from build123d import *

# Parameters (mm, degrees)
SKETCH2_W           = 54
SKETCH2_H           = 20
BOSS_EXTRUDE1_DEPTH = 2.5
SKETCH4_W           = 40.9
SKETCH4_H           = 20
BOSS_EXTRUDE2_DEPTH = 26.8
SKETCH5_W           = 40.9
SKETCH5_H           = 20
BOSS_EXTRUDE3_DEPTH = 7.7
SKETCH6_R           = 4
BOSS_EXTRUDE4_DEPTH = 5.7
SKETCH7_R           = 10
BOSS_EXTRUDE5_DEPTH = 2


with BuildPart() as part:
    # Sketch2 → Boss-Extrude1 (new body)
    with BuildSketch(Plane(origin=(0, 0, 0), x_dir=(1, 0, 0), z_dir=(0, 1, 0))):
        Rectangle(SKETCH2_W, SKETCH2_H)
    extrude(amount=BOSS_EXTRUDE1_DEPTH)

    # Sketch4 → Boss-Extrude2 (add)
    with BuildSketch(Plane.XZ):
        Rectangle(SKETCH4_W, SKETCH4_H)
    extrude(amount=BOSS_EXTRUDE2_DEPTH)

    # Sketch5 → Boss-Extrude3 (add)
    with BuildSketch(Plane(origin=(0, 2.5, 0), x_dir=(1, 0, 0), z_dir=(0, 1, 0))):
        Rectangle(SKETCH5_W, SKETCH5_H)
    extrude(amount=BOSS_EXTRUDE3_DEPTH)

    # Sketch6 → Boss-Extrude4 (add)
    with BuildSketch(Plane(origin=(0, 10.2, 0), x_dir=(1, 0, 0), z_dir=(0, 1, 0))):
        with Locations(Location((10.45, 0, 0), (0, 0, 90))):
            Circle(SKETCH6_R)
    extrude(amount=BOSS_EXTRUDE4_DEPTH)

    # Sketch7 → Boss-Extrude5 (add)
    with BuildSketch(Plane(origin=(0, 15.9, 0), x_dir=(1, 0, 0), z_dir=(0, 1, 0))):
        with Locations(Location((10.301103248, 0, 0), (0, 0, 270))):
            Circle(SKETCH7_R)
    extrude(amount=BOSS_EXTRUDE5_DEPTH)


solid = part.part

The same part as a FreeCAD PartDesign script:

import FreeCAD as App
import Part
import Sketcher

V = App.Vector

doc = App.newDocument("Part")
body = doc.addObject("PartDesign::Body", "Body")

sketch1 = body.newObject("Sketcher::SketchObject", "Sketch")
sketch1.AttachmentSupport = (doc.getObject("XZ_Plane"), [""])
sketch1.MapMode = "FlatFace"
sketch1.addGeometry(Part.LineSegment(V(-27, -10, 0), V(-27, 10, 0)), False)
sketch1.addGeometry(Part.LineSegment(V(-27, 10, 0), V(27, 10, 0)), False)
sketch1.addGeometry(Part.LineSegment(V(27, 10, 0), V(27, -10, 0)), False)
sketch1.addGeometry(Part.LineSegment(V(27, -10, 0), V(-27, -10, 0)), False)
sketch1.addConstraint(Sketcher.Constraint("Coincident", 0, 2, 1, 1))
sketch1.addConstraint(Sketcher.Constraint("Coincident", 1, 2, 2, 1))
sketch1.addConstraint(Sketcher.Constraint("Coincident", 2, 2, 3, 1))
sketch1.addConstraint(Sketcher.Constraint("Coincident", 3, 2, 0, 1))
sketch1.addConstraint(Sketcher.Constraint("Vertical", 0))
sketch1.addConstraint(Sketcher.Constraint("Horizontal", 1))
sketch1.addConstraint(Sketcher.Constraint("Vertical", 2))
sketch1.addConstraint(Sketcher.Constraint("Horizontal", 3))
sketch1.addConstraint(Sketcher.Constraint("Symmetric", 0, 2, 2, 2, -1, 1))
sketch1.addConstraint(Sketcher.Constraint("DistanceX", 1, 1, 1, 2, 54.0))
sketch1.addConstraint(Sketcher.Constraint("DistanceY", 0, 1, 0, 2, 20.0))
pad1 = body.newObject("PartDesign::Pad", "Pad")
pad1.Profile = sketch1
pad1.Length = 2.5
pad1.Reversed = True

sketch2 = body.newObject("Sketcher::SketchObject", "Sketch001")
sketch2.AttachmentSupport = (doc.getObject("XZ_Plane"), [""])
sketch2.MapMode = "FlatFace"
sketch2.addGeometry(Part.LineSegment(V(-20, 10, 0), V(-20, -10, 0)), False)
sketch2.addGeometry(Part.LineSegment(V(-20, -10, 0), V(20, -10, 0)), False)
sketch2.addGeometry(Part.LineSegment(V(20, -10, 0), V(20, 10, 0)), False)
sketch2.addGeometry(Part.LineSegment(V(20, 10, 0), V(-20, 10, 0)), False)
sketch2.addConstraint(Sketcher.Constraint("Coincident", 0, 2, 1, 1))
sketch2.addConstraint(Sketcher.Constraint("Coincident", 1, 2, 2, 1))
sketch2.addConstraint(Sketcher.Constraint("Coincident", 2, 2, 3, 1))
sketch2.addConstraint(Sketcher.Constraint("Coincident", 3, 2, 0, 1))
sketch2.addConstraint(Sketcher.Constraint("Vertical", 0))
sketch2.addConstraint(Sketcher.Constraint("Horizontal", 1))
sketch2.addConstraint(Sketcher.Constraint("Vertical", 2))
sketch2.addConstraint(Sketcher.Constraint("Horizontal", 3))
sketch2.addConstraint(Sketcher.Constraint("Symmetric", 0, 2, 2, 2, -1, 1))
sketch2.addConstraint(Sketcher.Constraint("DistanceY", 0, 2, 0, 1, 20.0))
sketch2.addConstraint(Sketcher.Constraint("DistanceX", 1, 1, 1, 2, 40.9))
pad2 = body.newObject("PartDesign::Pad", "Pad001")
pad2.Profile = sketch2
pad2.Length = 26.8

sketch3 = body.newObject("Sketcher::SketchObject", "Sketch002")
sketch3.AttachmentSupport = (doc.getObject("XZ_Plane"), [""])
sketch3.MapMode = "FlatFace"
sketch3.AttachmentOffset = App.Placement(V(0, 0, -2.5), App.Rotation())
sketch3.addGeometry(Part.LineSegment(V(-20, -10, 0), V(-20, 10, 0)), False)
sketch3.addGeometry(Part.LineSegment(V(-20, 10, 0), V(20, 10, 0)), False)
sketch3.addGeometry(Part.LineSegment(V(20, 10, 0), V(20, -10, 0)), False)
sketch3.addGeometry(Part.LineSegment(V(20, -10, 0), V(-20, -10, 0)), False)
sketch3.addConstraint(Sketcher.Constraint("Coincident", 0, 2, 1, 1))
sketch3.addConstraint(Sketcher.Constraint("Coincident", 1, 2, 2, 1))
sketch3.addConstraint(Sketcher.Constraint("Coincident", 2, 2, 3, 1))
sketch3.addConstraint(Sketcher.Constraint("Coincident", 3, 2, 0, 1))
sketch3.addConstraint(Sketcher.Constraint("Vertical", 0))
sketch3.addConstraint(Sketcher.Constraint("Horizontal", 1))
sketch3.addConstraint(Sketcher.Constraint("Vertical", 2))
sketch3.addConstraint(Sketcher.Constraint("Horizontal", 3))
sketch3.addConstraint(Sketcher.Constraint("Symmetric", 0, 2, 2, 2, -1, 1))
sketch3.addConstraint(Sketcher.Constraint("DistanceY", 0, 1, 0, 2, 20.0))
sketch3.addConstraint(Sketcher.Constraint("DistanceX", 1, 1, 1, 2, 40.9))
pad3 = body.newObject("PartDesign::Pad", "Pad002")
pad3.Profile = sketch3
pad3.Length = 7.7
pad3.Reversed = True

sketch4 = body.newObject("Sketcher::SketchObject", "Sketch003")
sketch4.AttachmentSupport = (doc.getObject("XZ_Plane"), [""])
sketch4.MapMode = "FlatFace"
sketch4.AttachmentOffset = App.Placement(V(0, 0, -10.2), App.Rotation())
sketch4.addGeometry(Part.Circle(V(10.4, 0, 0), V(0, 0, 1), 4), False)
sketch4.addConstraint(Sketcher.Constraint("PointOnObject", 0, 3, -1))
sketch4.addConstraint(Sketcher.Constraint("Diameter", 0, 8.0))
sketch4.addConstraint(Sketcher.Constraint("DistanceX", -1, 1, 0, 3, 10.45))
pad4 = body.newObject("PartDesign::Pad", "Pad003")
pad4.Profile = sketch4
pad4.Length = 5.7
pad4.Reversed = True

sketch5 = body.newObject("Sketcher::SketchObject", "Sketch004")
sketch5.AttachmentSupport = (doc.getObject("XZ_Plane"), [""])
sketch5.MapMode = "FlatFace"
sketch5.AttachmentOffset = App.Placement(V(0, 0, -15.9), App.Rotation())
sketch5.addGeometry(Part.Circle(V(10, 0, 0), V(0, 0, 1), 10), False)
sketch5.addConstraint(Sketcher.Constraint("PointOnObject", 0, 3, -1))
sketch5.addConstraint(Sketcher.Constraint("Diameter", 0, 20.0))
sketch5.addConstraint(Sketcher.Constraint("DistanceX", -1, 1, 0, 3, 10.301103))
pad5 = body.newObject("PartDesign::Pad", "Pad004")
pad5.Profile = sketch5
pad5.Length = 2
pad5.Reversed = True

doc.recompute()
